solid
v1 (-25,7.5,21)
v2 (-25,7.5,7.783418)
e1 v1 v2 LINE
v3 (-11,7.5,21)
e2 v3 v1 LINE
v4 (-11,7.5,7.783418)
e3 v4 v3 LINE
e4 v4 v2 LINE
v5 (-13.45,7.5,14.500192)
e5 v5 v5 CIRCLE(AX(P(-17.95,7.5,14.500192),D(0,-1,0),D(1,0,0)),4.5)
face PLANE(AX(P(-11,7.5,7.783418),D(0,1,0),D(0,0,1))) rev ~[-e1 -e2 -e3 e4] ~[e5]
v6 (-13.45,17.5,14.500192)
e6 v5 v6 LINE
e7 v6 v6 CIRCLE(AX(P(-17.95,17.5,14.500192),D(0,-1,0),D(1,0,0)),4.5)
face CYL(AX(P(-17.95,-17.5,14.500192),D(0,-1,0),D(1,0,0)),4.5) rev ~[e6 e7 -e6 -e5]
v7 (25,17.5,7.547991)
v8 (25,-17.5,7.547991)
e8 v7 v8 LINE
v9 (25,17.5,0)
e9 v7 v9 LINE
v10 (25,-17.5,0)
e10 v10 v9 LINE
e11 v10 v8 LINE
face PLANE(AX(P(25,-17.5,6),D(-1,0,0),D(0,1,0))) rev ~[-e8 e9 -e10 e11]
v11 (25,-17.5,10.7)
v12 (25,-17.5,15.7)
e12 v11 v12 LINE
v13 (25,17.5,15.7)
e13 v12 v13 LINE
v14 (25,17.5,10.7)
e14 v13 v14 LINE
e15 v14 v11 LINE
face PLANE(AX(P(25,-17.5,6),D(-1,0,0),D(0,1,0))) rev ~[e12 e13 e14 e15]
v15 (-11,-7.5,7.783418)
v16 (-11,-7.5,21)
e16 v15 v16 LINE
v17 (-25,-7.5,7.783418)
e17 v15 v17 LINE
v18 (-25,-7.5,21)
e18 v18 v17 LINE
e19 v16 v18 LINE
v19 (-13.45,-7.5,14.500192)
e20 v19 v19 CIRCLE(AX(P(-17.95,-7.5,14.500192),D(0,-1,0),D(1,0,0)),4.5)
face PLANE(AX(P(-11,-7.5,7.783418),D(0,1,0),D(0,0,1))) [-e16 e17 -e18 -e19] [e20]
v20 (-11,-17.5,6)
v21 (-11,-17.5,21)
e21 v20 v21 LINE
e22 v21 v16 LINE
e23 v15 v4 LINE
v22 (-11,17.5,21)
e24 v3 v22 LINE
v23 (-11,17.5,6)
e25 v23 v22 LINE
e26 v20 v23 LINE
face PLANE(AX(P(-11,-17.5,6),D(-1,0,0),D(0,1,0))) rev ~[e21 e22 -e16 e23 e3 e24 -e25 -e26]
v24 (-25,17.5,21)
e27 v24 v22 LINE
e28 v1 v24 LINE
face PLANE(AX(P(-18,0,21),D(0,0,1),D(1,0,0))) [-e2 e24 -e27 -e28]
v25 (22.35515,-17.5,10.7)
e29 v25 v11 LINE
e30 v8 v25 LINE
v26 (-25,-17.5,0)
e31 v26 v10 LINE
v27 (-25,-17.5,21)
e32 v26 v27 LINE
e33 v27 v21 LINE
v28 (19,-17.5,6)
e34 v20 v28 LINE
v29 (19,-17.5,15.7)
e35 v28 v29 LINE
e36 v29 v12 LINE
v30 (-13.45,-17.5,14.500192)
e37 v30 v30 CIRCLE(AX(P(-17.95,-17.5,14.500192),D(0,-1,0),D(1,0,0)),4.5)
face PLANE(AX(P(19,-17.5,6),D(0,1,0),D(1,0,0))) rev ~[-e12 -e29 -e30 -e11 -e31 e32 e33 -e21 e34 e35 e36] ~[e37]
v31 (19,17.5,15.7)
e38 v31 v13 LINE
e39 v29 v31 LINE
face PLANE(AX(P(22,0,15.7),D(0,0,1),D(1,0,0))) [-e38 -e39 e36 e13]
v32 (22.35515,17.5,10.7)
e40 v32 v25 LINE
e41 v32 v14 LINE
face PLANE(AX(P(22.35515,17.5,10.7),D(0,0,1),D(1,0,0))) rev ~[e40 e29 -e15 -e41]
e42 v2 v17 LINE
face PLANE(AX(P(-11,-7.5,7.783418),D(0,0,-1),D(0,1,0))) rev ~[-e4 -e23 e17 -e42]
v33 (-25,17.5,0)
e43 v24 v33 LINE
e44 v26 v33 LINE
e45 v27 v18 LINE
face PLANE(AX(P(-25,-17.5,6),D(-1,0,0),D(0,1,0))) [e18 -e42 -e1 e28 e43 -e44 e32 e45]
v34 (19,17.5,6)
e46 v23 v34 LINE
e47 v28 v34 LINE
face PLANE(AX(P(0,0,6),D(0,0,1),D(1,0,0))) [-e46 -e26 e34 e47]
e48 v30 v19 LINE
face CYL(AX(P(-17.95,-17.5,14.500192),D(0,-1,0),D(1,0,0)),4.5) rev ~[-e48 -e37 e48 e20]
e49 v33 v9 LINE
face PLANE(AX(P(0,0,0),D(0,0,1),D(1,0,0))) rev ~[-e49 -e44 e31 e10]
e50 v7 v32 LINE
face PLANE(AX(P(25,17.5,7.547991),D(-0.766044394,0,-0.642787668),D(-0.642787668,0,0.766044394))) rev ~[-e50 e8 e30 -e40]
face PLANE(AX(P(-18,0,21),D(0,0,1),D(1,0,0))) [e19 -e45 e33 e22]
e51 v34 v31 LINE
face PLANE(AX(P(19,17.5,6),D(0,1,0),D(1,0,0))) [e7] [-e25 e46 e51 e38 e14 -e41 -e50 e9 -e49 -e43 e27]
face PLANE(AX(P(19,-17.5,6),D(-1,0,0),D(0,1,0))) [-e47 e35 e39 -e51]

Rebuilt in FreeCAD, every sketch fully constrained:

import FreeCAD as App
import Part
import Sketcher

V = App.Vector
Q = App.Units.Quantity

doc = App.newDocument("Part")
body = doc.addObject("PartDesign::Body", "Body")

# Sketch on XY plane
sketch1 = body.newObject("Sketcher::SketchObject", "Sketch")
sketch1.AttachmentSupport = (doc.getObject("XY_Plane"), [""])
sketch1.MapMode = "FlatFace"
sketch1.addGeometry(Part.LineSegment(V(-25, 18, 0), V(-25, -18, 0)), False)
sketch1.addGeometry(Part.LineSegment(V(-25, -18, 0), V(25, -18, 0)), False)
sketch1.addGeometry(Part.LineSegment(V(25, -18, 0), V(25, 18, 0)), False)
sketch1.addGeometry(Part.LineSegment(V(25, 18, 0), V(-25, 18, 0)), False)
sketch1.addConstraint(Sketcher.Constraint("Coincident", 0, 2, 1, 1))
sketch1.addConstraint(Sketcher.Constraint("Coincident", 1, 2, 2, 1))
sketch1.addConstraint(Sketcher.Constraint("Coincident", 2, 2, 3, 1))
sketch1.addConstraint(Sketcher.Constraint("Coincident", 3, 2, 0, 1))
sketch1.addConstraint(Sketcher.Constraint("Vertical", 0))
sketch1.addConstraint(Sketcher.Constraint("Horizontal", 1))
sketch1.addConstraint(Sketcher.Constraint("Vertical", 2))
sketch1.addConstraint(Sketcher.Constraint("Horizontal", 3))
sketch1.addConstraint(Sketcher.Constraint("Symmetric", 0, 2, 2, 2, -1, 1))
sketch1.addConstraint(Sketcher.Constraint("DistanceX", 1, 1, 1, 2, 50.0))
sketch1.addConstraint(Sketcher.Constraint("DistanceY", 0, 2, 0, 1, 35.0))
pad1 = body.newObject("PartDesign::Pad", "Pad")
pad1.Profile = sketch1
pad1.Length = 6

# Sketch on XY plane
sketch2 = body.newObject("Sketcher::SketchObject", "Sketch001")
sketch2.AttachmentSupport = (doc.getObject("XY_Plane"), [""])
sketch2.MapMode = "FlatFace"
sketch2.AttachmentOffset = App.Placement(V(0, 0, 6), App.Rotation())
sketch2.addGeometry(Part.LineSegment(V(-25, 18, 0), V(-25, -18, 0)), False)
sketch2.addGeometry(Part.LineSegment(V(-25, -18, 0), V(-11, -18, 0)), False)
sketch2.addGeometry(Part.LineSegment(V(-11, -18, 0), V(-11, 18, 0)), False)
sketch2.addGeometry(Part.LineSegment(V(-11, 18, 0), V(-25, 18, 0)), False)
sketch2.addConstraint(Sketcher.Constraint("Coincident", 0, 2, 1, 1))
sketch2.addConstraint(Sketcher.Constraint("Coincident", 1, 2, 2, 1))
sketch2.addConstraint(Sketcher.Constraint("Coincident", 2, 2, 3, 1))
sketch2.addConstraint(Sketcher.Constraint("Coincident", 3, 2, 0, 1))
sketch2.addConstraint(Sketcher.Constraint("Vertical", 0))
sketch2.addConstraint(Sketcher.Constraint("Horizontal", 1))
sketch2.addConstraint(Sketcher.Constraint("Vertical", 2))
sketch2.addConstraint(Sketcher.Constraint("Horizontal", 3))
sketch2.addConstraint(Sketcher.Constraint("DistanceX", 1, 1, 1, 2, 14.0))
sketch2.addConstraint(Sketcher.Constraint("DistanceY", 0, 2, 0, 1, 35.0))
sketch2.addConstraint(Sketcher.Constraint("DistanceX", 0, 2, -1, 1, 25.0))
sketch2.addConstraint(Sketcher.Constraint("DistanceY", 0, 2, -1, 1, 17.5))
pad2 = body.newObject("PartDesign::Pad", "Pad001")
pad2.Profile = sketch2
pad2.Length = 15

# Sketch on YZ plane
sketch3 = body.newObject("Sketcher::SketchObject", "Sketch002")
sketch3.AttachmentSupport = (doc.getObject("YZ_Plane"), [""])
sketch3.MapMode = "FlatFace"
sketch3.AttachmentOffset = App.Placement(V(0, 0, -11), App.Rotation())
sketch3.addGeometry(Part.LineSegment(V(-8, 21, 0), V(-8, 8, 0)), False)
sketch3.addGeometry(Part.LineSegment(V(-8, 8, 0), V(8, 8, 0)), False)
sketch3.addGeometry(Part.LineSegment(V(8, 8, 0), V(8, 21, 0)), False)
sketch3.addGeometry(Part.LineSegment(V(8, 21, 0), V(-8, 21, 0)), False)
sketch3.addConstraint(Sketcher.Constraint("Coincident", 0, 2, 1, 1))
sketch3.addConstraint(Sketcher.Constraint("Coincident", 1, 2, 2, 1))
sketch3.addConstraint(Sketcher.Constraint("Coincident", 2, 2, 3, 1))
sketch3.addConstraint(Sketcher.Constraint("Coincident", 3, 2, 0, 1))
sketch3.addConstraint(Sketcher.Constraint("Vertical", 0))
sketch3.addConstraint(Sketcher.Constraint("Horizontal", 1))
sketch3.addConstraint(Sketcher.Constraint("Vertical", 2))
sketch3.addConstraint(Sketcher.Constraint("Horizontal", 3))
sketch3.addConstraint(Sketcher.Constraint("DistanceX", 1, 1, 1, 2, 15.0))
sketch3.addConstraint(Sketcher.Constraint("DistanceY", -1, 1, 2, 2, 21.0))
sketch3.addConstraint(Sketcher.Constraint("DistanceX", 0, 2, -1, 1, 7.5))
sketch3.addConstraint(Sketcher.Constraint("DistanceY", 0, 2, 0, 1, 13.216582))
pocket1 = body.newObject("PartDesign::Pocket", "Pocket")
pocket1.Profile = sketch3
pocket1.Length = 25

# Sketch on XZ plane
sketch4 = body.newObject("Sketcher::SketchObject", "Sketch003")
sketch4.AttachmentSupport = (doc.getObject("XZ_Plane"), [""])
sketch4.MapMode = "FlatFace"
sketch4.AttachmentOffset = App.Placement(V(0, 0, 17.5), App.Rotation())
sketch4.addGeometry(Part.Circle(V(-17.9, 14.5, 0), V(0, 0, 1), 4.5), False)
sketch4.addConstraint(Sketcher.Constraint("Diameter", 0, 9.0))
sketch4.addConstraint(Sketcher.Constraint("DistanceX", 0, 3, -1, 1, 17.95))
sketch4.addConstraint(Sketcher.Constraint("DistanceY", -1, 1, 0, 3, 14.500192))
pocket2 = body.newObject("PartDesign::Pocket", "Pocket001")
pocket2.Profile = sketch4
pocket2.Length = 41.5

# Sketch on XY plane
sketch5 = body.newObject("Sketcher::SketchObject", "Sketch004")
sketch5.AttachmentSupport = (doc.getObject("XY_Plane"), [""])
sketch5.MapMode = "FlatFace"
sketch5.AttachmentOffset = App.Placement(V(0, 0, 6), App.Rotation())
sketch5.addGeometry(Part.LineSegment(V(19, 18, 0), V(19, -18, 0)), False)
sketch5.addGeometry(Part.LineSegment(V(19, -18, 0), V(25, -18, 0)), False)
sketch5.addGeometry(Part.LineSegment(V(25, -18, 0), V(25, 18, 0)), False)
sketch5.addGeometry(Part.LineSegment(V(25, 18, 0), V(19, 18, 0)), False)
sketch5.addConstraint(Sketcher.Constraint("Coincident", 0, 2, 1, 1))
sketch5.addConstraint(Sketcher.Constraint("Coincident", 1, 2, 2, 1))
sketch5.addConstraint(Sketcher.Constraint("Coincident", 2, 2, 3, 1))
sketch5.addConstraint(Sketcher.Constraint("Coincident", 3, 2, 0, 1))
sketch5.addConstraint(Sketcher.Constraint("Vertical", 0))
sketch5.addConstraint(Sketcher.Constraint("Horizontal", 1))
sketch5.addConstraint(Sketcher.Constraint("Vertical", 2))
sketch5.addConstraint(Sketcher.Constraint("Horizontal", 3))
sketch5.addConstraint(Sketcher.Constraint("DistanceX", 1, 1, 1, 2, 6.0))
sketch5.addConstraint(Sketcher.Constraint("DistanceY", 0, 2, 0, 1, 35.0))
sketch5.addConstraint(Sketcher.Constraint("DistanceX", -1, 1, 0, 2, 19.0))
sketch5.addConstraint(Sketcher.Constraint("DistanceY", 0, 2, -1, 1, 17.5))
pad3 = body.newObject("PartDesign::Pad", "Pad002")
pad3.Profile = sketch5
pad3.Length = 9.7

# Sketch on XZ plane
sketch6 = body.newObject("Sketcher::SketchObject", "Sketch005")
sketch6.AttachmentSupport = (doc.getObject("XZ_Plane"), [""])
sketch6.MapMode = "FlatFace"
sketch6.AttachmentOffset = App.Placement(V(0, 0, -17.5), App.Rotation())
sketch6.addGeometry(Part.LineSegment(V(22.4, 10.7, 0), V(25, 10.7, 0)), False)
sketch6.addGeometry(Part.LineSegment(V(25, 10.7, 0), V(25, 7.5, 0)), False)
sketch6.addGeometry(Part.LineSegment(V(25, 7.5, 0), V(22.4, 10.7, 0)), False)
sketch6.addConstraint(Sketcher.Constraint("Coincident", 0, 2, 1, 1))
sketch6.addConstraint(Sketcher.Constraint("Coincident", 1, 2, 2, 1))
sketch6.addConstraint(Sketcher.Constraint("Coincident", 2, 2, 0, 1))
sketch6.addConstraint(Sketcher.Constraint("Horizontal", 0))
sketch6.addConstraint(Sketcher.Constraint("Vertical", 1))
sketch6.addConstraint(Sketcher.Constraint("Angle", 2, Q("130.000004 deg")))
sketch6.addConstraint(Sketcher.Constraint("DistanceX", -1, 1, 0, 2, 25.0))
sketch6.addConstraint(Sketcher.Constraint("DistanceY", -1, 1, 0, 2, 10.7))
sketch6.addConstraint(Sketcher.Constraint("DistanceX", 0, 1, 0, 2, 2.64485))
pocket3 = body.newObject("PartDesign::Pocket", "Pocket002")
pocket3.Profile = sketch6
pocket3.Length = 36.8
pocket3.Reversed = True

doc.recompute()
